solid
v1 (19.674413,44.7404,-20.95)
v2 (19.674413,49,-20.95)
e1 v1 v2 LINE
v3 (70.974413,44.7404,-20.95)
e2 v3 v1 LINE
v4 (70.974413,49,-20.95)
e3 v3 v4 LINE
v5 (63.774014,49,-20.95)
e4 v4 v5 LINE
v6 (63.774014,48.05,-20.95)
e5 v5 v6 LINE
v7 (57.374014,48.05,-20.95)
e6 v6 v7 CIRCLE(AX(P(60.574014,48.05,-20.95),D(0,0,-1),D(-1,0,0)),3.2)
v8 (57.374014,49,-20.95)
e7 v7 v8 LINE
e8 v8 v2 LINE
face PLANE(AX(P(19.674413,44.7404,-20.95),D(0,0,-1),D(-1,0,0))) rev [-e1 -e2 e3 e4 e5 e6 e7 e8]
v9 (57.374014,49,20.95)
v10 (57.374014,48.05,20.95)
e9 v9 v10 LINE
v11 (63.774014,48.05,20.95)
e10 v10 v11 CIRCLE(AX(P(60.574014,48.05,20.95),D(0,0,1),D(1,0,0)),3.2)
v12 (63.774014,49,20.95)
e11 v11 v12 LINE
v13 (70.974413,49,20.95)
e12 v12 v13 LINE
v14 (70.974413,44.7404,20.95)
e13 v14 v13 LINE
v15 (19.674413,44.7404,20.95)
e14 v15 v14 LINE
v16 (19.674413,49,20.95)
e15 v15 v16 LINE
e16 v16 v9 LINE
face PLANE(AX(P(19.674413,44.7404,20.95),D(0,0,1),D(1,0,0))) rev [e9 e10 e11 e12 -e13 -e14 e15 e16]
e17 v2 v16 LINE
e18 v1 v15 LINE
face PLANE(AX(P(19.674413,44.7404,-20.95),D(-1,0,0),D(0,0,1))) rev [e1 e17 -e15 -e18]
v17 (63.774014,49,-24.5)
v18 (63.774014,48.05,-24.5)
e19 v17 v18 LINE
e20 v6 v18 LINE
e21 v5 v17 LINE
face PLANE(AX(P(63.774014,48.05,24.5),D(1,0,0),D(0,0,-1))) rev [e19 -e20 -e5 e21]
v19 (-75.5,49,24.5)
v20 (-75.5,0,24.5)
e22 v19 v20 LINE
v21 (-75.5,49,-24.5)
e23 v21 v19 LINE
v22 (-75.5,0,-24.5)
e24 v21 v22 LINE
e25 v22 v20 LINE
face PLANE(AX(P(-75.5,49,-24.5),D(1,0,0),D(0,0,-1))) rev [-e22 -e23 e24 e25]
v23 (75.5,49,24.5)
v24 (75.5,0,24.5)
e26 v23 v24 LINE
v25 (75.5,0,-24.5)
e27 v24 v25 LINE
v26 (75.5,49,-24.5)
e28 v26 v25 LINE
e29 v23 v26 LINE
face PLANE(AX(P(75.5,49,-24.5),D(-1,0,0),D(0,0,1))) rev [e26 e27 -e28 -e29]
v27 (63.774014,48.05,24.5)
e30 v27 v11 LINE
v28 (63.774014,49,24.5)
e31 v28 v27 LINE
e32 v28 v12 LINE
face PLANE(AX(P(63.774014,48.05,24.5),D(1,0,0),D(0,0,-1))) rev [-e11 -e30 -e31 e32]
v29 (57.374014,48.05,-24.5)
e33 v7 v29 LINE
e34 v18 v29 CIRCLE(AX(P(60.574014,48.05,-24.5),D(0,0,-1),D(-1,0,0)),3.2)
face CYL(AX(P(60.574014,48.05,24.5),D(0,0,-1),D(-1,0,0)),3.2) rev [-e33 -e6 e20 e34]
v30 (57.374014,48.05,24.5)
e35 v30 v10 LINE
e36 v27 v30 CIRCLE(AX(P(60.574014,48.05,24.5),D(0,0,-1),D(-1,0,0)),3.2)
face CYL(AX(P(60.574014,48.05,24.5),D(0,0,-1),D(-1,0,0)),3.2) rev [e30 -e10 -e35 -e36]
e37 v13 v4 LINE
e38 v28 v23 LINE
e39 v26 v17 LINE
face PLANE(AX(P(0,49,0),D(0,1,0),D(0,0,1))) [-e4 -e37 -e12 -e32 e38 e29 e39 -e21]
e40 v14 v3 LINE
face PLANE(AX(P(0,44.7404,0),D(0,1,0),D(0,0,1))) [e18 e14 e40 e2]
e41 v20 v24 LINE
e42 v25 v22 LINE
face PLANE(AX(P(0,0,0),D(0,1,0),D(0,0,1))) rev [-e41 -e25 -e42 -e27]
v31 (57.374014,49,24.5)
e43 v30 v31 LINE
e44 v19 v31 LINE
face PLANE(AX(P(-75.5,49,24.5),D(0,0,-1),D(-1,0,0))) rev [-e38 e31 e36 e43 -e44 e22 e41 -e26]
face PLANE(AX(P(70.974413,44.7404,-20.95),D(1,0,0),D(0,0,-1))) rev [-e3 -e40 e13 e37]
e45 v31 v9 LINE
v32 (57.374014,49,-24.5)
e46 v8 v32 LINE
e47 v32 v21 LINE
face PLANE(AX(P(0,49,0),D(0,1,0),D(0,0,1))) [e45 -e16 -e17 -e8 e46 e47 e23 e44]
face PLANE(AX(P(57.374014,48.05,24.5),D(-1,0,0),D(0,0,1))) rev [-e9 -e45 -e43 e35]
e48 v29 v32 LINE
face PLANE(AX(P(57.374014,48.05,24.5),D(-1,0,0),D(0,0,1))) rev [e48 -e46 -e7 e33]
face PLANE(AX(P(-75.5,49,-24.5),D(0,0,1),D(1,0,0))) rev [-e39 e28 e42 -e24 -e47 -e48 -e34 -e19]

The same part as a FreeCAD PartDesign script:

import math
import FreeCAD as App
import Part
import Sketcher
from FreeCAD import Vector


def add_polygon(sketch, points):
    """Adds a closed chain of lines whose ends are joined by coincident constraints."""
    first, n = sketch.GeometryCount, len(points)
    for a, b in zip(points, points[1:] + points[:1]):
        sketch.addGeometry(Part.LineSegment(App.Vector(*a, 0), App.Vector(*b, 0)), False)
    for i in range(n):
        sketch.addConstraint(Sketcher.Constraint("Coincident", first + i, 2, first + (i + 1) % n, 1))

doc = App.newDocument("Part")
body = doc.addObject("PartDesign::Body", "Body")

sketch1 = body.newObject("Sketcher::SketchObject", "Sketch")
sketch1.AttachmentSupport = (doc.getObject("XZ_Plane"), [""])
sketch1.MapMode = "FlatFace"
add_polygon(sketch1, [(-76, -24), (-76, 24), (76, 24), (76, -24)])
sketch1.addConstraint(Sketcher.Constraint("Vertical", 0))
sketch1.addConstraint(Sketcher.Constraint("Horizontal", 1))
sketch1.addConstraint(Sketcher.Constraint("Vertical", 2))
sketch1.addConstraint(Sketcher.Constraint("Horizontal", 3))
sketch1.addConstraint(Sketcher.Constraint("Symmetric", 0, 2, 2, 2, -1, 1))
sketch1.addConstraint(Sketcher.Constraint("DistanceX", 1, 1, 1, 2, 151.0))
sketch1.addConstraint(Sketcher.Constraint("DistanceY", 0, 1, 0, 2, 49.0))
pad1 = body.newObject("PartDesign::Pad", "Pad")
pad1.Profile = sketch1
pad1.Length = 49
pad1.Reversed = True

sketch2 = body.newObject("Sketcher::SketchObject", "Sketch001")
sketch2.AttachmentSupport = (doc.getObject("XZ_Plane"), [""])
sketch2.MapMode = "FlatFace"
sketch2.AttachmentOffset = App.Placement(Vector(0, 0, -49), App.Rotation())
add_polygon(sketch2, [(20, -21), (20, 21), (71, 21), (71, -21)])
sketch2.addConstraint(Sketcher.Constraint("Vertical", 0))
sketch2.addConstraint(Sketcher.Constraint("Horizontal", 1))
sketch2.addConstraint(Sketcher.Constraint("Vertical", 2))
sketch2.addConstraint(Sketcher.Constraint("Horizontal", 3))
sketch2.addConstraint(Sketcher.Constraint("DistanceX", 1, 1, 1, 2, 51.3))
sketch2.addConstraint(Sketcher.Constraint("DistanceY", 0, 1, 0, 2, 41.9))
sketch2.addConstraint(Sketcher.Constraint("DistanceY", -1, 1, 0, 2, 20.95))
sketch2.addConstraint(Sketcher.Constraint("DistanceX", -1, 1, 0, 2, 19.674413))
pocket1 = body.newObject("PartDesign::Pocket", "Pocket")
pocket1.Profile = sketch2
pocket1.Length = 4.2596
pocket1.Reversed = True

sketch3 = body.newObject("Sketcher::SketchObject", "Sketch002")
sketch3.AttachmentSupport = (doc.getObject("XY_Plane"), [""])
sketch3.MapMode = "FlatFace"
sketch3.AttachmentOffset = App.Placement(Vector(0, 0, -24.5), App.Rotation())
sketch3.addGeometry(Part.LineSegment(Vector(63.8, 49, 0), Vector(63.8, 48, 0)), False)
sketch3.addGeometry(Part.ArcOfCircle(Part.Circle(Vector(60.6, 48, 0), Vector(0, 0, 1), 3.2), math.radians(180), math.radians(360)), False)
sketch3.addGeometry(Part.LineSegment(Vector(57.4, 48, 0), Vector(57.4, 49, 0)), False)
sketch3.addGeometry(Part.ArcOfCircle(Part.Circle(Vector(60.6, 49, 0), Vector(0, 0, 1), 3.2), math.radians(0), math.radians(180)), False)
sketch3.addConstraint(Sketcher.Constraint("Tangent", 0, 2, 1, 2))
sketch3.addConstraint(Sketcher.Constraint("Tangent", 1, 1, 2, 1))
sketch3.addConstraint(Sketcher.Constraint("Tangent", 2, 2, 3, 2))
sketch3.addConstraint(Sketcher.Constraint("Tangent", 3, 1, 0, 1))
sketch3.addConstraint(Sketcher.Constraint("Vertical", 0))
sketch3.addConstraint(Sketcher.Constraint("Vertical", 2))
sketch3.addConstraint(Sketcher.Constraint("Radius", 1, 3.2))
sketch3.addConstraint(Sketcher.Constraint("DistanceY", -1, 1, 3, 3, 49.0))
sketch3.addConstraint(Sketcher.Constraint("DistanceY", 0, 2, 0, 1, 0.95))
sketch3.addConstraint(Sketcher.Constraint("DistanceX", -1, 1, 1, 3, 60.574014))
pocket2 = body.newObject("PartDesign::Pocket", "Pocket001")
pocket2.Profile = sketch3
pocket2.Type = "ThroughAll"
pocket2.Midplane = True

doc.recompute()
